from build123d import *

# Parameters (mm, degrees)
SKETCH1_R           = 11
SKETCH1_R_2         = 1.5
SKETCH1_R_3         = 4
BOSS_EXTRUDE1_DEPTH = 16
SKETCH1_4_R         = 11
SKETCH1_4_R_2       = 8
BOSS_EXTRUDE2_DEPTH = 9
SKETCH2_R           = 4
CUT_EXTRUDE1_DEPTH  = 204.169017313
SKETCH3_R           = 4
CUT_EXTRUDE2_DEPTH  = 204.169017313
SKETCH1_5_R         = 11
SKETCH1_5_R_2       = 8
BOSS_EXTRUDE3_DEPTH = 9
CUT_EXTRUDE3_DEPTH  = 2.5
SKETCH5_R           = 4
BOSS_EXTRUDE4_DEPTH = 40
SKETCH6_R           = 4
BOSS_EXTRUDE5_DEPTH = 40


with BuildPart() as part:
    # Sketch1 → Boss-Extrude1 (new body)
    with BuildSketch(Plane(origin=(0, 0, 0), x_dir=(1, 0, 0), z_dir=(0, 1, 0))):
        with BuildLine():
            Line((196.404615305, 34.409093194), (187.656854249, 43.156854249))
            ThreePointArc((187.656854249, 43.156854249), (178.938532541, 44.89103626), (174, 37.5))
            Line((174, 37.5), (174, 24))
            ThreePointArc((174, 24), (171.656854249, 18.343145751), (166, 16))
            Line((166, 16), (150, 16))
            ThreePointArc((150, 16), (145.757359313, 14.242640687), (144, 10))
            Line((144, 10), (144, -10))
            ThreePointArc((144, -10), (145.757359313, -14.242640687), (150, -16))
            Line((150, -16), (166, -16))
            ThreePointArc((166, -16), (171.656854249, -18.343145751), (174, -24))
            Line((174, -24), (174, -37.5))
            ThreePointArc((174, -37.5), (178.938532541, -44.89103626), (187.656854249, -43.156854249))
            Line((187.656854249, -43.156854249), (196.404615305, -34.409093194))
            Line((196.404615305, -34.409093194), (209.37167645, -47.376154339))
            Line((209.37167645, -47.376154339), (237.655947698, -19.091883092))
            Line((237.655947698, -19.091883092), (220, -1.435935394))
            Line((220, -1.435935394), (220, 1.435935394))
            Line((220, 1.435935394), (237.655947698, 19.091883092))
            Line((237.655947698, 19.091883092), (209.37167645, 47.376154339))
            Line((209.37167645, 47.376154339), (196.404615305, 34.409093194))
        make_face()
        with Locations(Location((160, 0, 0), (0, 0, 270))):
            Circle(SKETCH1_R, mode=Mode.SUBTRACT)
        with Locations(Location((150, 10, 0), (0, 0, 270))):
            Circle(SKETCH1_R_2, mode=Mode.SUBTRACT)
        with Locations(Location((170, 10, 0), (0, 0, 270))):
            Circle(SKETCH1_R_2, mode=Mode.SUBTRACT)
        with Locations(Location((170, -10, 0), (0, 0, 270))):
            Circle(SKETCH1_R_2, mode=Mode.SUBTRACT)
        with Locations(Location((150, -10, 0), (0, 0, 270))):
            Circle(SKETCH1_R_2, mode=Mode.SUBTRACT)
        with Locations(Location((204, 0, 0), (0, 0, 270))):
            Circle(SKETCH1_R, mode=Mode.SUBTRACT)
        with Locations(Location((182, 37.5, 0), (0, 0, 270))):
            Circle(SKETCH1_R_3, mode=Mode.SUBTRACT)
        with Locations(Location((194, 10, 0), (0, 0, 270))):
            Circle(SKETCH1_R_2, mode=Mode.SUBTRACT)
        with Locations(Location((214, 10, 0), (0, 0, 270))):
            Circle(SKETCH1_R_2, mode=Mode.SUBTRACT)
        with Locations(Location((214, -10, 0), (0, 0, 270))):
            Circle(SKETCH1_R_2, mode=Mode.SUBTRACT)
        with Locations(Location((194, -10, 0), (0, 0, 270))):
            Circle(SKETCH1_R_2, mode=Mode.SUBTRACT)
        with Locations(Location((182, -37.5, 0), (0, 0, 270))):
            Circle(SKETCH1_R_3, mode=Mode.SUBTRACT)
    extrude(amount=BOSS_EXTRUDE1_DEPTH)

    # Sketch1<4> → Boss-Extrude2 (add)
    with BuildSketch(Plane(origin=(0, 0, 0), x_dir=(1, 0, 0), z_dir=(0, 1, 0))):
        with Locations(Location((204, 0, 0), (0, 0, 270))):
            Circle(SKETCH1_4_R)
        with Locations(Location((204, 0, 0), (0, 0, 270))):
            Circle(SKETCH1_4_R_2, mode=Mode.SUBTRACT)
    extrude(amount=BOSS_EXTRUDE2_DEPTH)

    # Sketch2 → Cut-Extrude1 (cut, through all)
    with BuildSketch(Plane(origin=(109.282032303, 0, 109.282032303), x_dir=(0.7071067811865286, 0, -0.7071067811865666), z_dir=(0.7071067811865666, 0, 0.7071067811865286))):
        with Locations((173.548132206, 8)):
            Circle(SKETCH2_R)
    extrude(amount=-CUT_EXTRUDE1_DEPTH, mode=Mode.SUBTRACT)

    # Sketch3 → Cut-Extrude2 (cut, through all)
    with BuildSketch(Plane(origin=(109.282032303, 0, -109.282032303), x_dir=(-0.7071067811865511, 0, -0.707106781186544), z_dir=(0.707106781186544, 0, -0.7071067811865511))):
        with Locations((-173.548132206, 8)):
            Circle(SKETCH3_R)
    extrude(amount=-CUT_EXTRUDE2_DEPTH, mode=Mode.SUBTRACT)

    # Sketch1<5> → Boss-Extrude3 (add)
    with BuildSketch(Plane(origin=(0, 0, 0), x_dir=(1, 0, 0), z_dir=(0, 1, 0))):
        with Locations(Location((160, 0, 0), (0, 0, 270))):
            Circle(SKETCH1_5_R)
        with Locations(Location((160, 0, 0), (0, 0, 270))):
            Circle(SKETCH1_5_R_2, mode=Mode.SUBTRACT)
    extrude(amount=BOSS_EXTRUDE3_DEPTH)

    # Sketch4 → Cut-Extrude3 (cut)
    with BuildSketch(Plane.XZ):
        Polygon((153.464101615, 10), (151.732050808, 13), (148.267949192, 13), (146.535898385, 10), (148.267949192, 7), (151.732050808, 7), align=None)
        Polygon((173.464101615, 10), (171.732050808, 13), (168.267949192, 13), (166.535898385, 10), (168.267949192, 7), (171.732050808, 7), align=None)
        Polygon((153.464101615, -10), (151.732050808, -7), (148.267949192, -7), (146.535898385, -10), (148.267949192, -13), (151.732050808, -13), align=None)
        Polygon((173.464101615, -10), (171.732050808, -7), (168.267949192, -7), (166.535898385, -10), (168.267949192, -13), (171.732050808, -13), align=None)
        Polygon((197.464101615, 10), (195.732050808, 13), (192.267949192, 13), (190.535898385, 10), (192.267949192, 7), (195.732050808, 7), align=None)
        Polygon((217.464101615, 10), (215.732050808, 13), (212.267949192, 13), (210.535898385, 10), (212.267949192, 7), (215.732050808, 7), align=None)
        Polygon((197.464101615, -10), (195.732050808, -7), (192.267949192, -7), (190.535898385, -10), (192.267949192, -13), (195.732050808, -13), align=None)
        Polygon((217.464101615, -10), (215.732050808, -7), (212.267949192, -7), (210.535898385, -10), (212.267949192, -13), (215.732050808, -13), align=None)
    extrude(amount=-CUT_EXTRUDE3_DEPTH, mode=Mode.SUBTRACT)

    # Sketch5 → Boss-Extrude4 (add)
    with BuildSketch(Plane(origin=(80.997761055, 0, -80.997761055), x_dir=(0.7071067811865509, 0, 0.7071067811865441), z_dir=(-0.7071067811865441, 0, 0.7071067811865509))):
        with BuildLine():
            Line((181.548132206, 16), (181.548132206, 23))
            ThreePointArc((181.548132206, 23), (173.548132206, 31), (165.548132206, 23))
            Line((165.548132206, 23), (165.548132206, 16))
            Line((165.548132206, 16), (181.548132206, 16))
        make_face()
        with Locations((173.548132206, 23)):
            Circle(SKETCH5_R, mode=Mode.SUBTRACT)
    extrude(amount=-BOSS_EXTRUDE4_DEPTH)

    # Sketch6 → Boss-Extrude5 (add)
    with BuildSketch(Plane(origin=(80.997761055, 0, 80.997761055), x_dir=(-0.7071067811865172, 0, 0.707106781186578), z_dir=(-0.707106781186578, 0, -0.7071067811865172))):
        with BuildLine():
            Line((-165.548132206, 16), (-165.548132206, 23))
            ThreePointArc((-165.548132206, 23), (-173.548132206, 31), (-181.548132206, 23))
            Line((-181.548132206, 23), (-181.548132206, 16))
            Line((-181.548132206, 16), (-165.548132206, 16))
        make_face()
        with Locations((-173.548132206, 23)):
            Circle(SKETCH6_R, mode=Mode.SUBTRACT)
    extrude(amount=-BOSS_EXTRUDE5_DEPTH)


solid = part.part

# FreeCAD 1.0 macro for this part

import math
import FreeCAD as App
import Part
import Sketcher
Q = App.Units.Quantity

doc = App.newDocument("Part")
body = doc.addObject("PartDesign::Body", "Body")

# Sketch on XZ plane
sketch1 = doc.addObject("Sketcher::SketchObject", "Sketch")
body.addObject(sketch1)
sketch1.AttachmentSupport = (doc.XZ_Plane, [""])
sketch1.MapMode = "FlatFace"
sketch1.addGeometry(Part.LineSegment(App.Vector(196.4, -34.4, 0), App.Vector(187.7, -43.2, 0)), False)
sketch1.addGeometry(Part.ArcOfCircle(Part.Circle(App.Vector(182, -37.5, 0), App.Vector(0, 0, 1), 8), math.radians(180), math.radians(315)), False)
sketch1.addGeometry(Part.LineSegment(App.Vector(174, -37.5, 0), App.Vector(174, -24, 0)), False)
sketch1.addGeometry(Part.ArcOfCircle(Part.Circle(App.Vector(166, -24, 0), App.Vector(0, 0, 1), 8), math.radians(0), math.radians(90)), False)
sketch1.addGeometry(Part.LineSegment(App.Vector(166, -16, 0), App.Vector(150, -16, 0)), False)
sketch1.addGeometry(Part.ArcOfCircle(Part.Circle(App.Vector(150, -10, 0), App.Vector(0, 0, 1), 6), math.radians(180), math.radians(270)), False)
sketch1.addGeometry(Part.LineSegment(App.Vector(144, -10, 0), App.Vector(144, 10, 0)), False)
sketch1.addGeometry(Part.ArcOfCircle(Part.Circle(App.Vector(150, 10, 0), App.Vector(0, 0, 1), 6), math.radians(90), math.radians(180)), False)
sketch1.addGeometry(Part.LineSegment(App.Vector(150, 16, 0), App.Vector(166, 16, 0)), False)
sketch1.addGeometry(Part.ArcOfCircle(Part.Circle(App.Vector(166, 24, 0), App.Vector(0, 0, 1), 8), math.radians(-90), math.radians(0)), False)
sketch1.addGeometry(Part.LineSegment(App.Vector(174, 24, 0), App.Vector(174, 37.5, 0)), False)
sketch1.addGeometry(Part.ArcOfCircle(Part.Circle(App.Vector(182, 37.5, 0), App.Vector(0, 0, 1), 8), math.radians(45), math.radians(180)), False)
sketch1.addGeometry(Part.LineSegment(App.Vector(187.7, 43.2, 0), App.Vector(196.4, 34.4, 0)), False)
sketch1.addGeometry(Part.LineSegment(App.Vector(196.4, 34.4, 0), App.Vector(209.4, 47.4, 0)), False)
sketch1.addGeometry(Part.LineSegment(App.Vector(209.4, 47.4, 0), App.Vector(237.7, 19.1, 0)), False)
sketch1.addGeometry(Part.LineSegment(App.Vector(237.7, 19.1, 0), App.Vector(220, 1.4, 0)), False)
sketch1.addGeometry(Part.LineSegment(App.Vector(220, 1.4, 0), App.Vector(220, -1.4, 0)), False)
sketch1.addGeometry(Part.LineSegment(App.Vector(220, -1.4, 0), App.Vector(237.7, -19.1, 0)), False)
sketch1.addGeometry(Part.LineSegment(App.Vector(237.7, -19.1, 0), App.Vector(209.4, -47.4, 0)), False)
sketch1.addGeometry(Part.LineSegment(App.Vector(209.4, -47.4, 0), App.Vector(196.4, -34.4, 0)), False)
sketch1.addGeometry(Part.Circle(App.Vector(150, 10, 0), App.Vector(0, 0, 1), 1.5), False)
sketch1.addGeometry(Part.Circle(App.Vector(170, 10, 0), App.Vector(0, 0, 1), 1.5), False)
sketch1.addGeometry(Part.Circle(App.Vector(182, 37.5, 0), App.Vector(0, 0, 1), 4), False)
sketch1.addGeometry(Part.Circle(App.Vector(194, 10, 0), App.Vector(0, 0, 1), 1.5), False)
sketch1.addGeometry(Part.Circle(App.Vector(214, 10, 0), App.Vector(0, 0, 1), 1.5), False)
sketch1.addGeometry(Part.Circle(App.Vector(150, -10, 0), App.Vector(0, 0, 1), 1.5), False)
sketch1.addGeometry(Part.Circle(App.Vector(160, 0, 0), App.Vector(0, 0, 1), 11), False)
sketch1.addGeometry(Part.Circle(App.Vector(170, -10, 0), App.Vector(0, 0, 1), 1.5), False)
sketch1.addGeometry(Part.Circle(App.Vector(194, -10, 0), App.Vector(0, 0, 1), 1.5), False)
sketch1.addGeometry(Part.Circle(App.Vector(204, 0, 0), App.Vector(0, 0, 1), 11), False)
sketch1.addGeometry(Part.Circle(App.Vector(214, -10, 0), App.Vector(0, 0, 1), 1.5), False)
sketch1.addGeometry(Part.Circle(App.Vector(182, -37.5, 0), App.Vector(0, 0, 1), 4), False)
sketch1.addConstraint(Sketcher.Constraint("Tangent", 0, 2, 1, 2))
sketch1.addConstraint(Sketcher.Constraint("Tangent", 1, 1, 2, 1))
sketch1.addConstraint(Sketcher.Constraint("Tangent", 2, 2, 3, 1))
sketch1.addConstraint(Sketcher.Constraint("Tangent", 3, 2, 4, 1))
sketch1.addConstraint(Sketcher.Constraint("Tangent", 4, 2, 5, 2))
sketch1.addConstraint(Sketcher.Constraint("Tangent", 5, 1, 6, 1))
sketch1.addConstraint(Sketcher.Constraint("Tangent", 6, 2, 7, 2))
sketch1.addConstraint(Sketcher.Constraint("Tangent", 7, 1, 8, 1))
sketch1.addConstraint(Sketcher.Constraint("Tangent", 8, 2, 9, 1))
sketch1.addConstraint(Sketcher.Constraint("Tangent", 9, 2, 10, 1))
sketch1.addConstraint(Sketcher.Constraint("Tangent", 10, 2, 11, 2))
sketch1.addConstraint(Sketcher.Constraint("Tangent", 11, 1, 12, 1))
sketch1.addConstraint(Sketcher.Constraint("Coincident", 12, 2, 13, 1))
sketch1.addConstraint(Sketcher.Constraint("Coincident", 13, 2, 14, 1))
sketch1.addConstraint(Sketcher.Constraint("Coincident", 14, 2, 15, 1))
sketch1.addConstraint(Sketcher.Constraint("Coincident", 15, 2, 16, 1))
sketch1.addConstraint(Sketcher.Constraint("Coincident", 16, 2, 17, 1))
sketch1.addConstraint(Sketcher.Constraint("Coincident", 17, 2, 18, 1))
sketch1.addConstraint(Sketcher.Constraint("Coincident", 18, 2, 19, 1))
sketch1.addConstraint(Sketcher.Constraint("Coincident", 19, 2, 0, 1))
sketch1.addConstraint(Sketcher.Constraint("Vertical", 2))
sketch1.addConstraint(Sketcher.Constraint("Horizontal", 4))
sketch1.addConstraint(Sketcher.Constraint("Vertical", 6))
sketch1.addConstraint(Sketcher.Constraint("Horizontal", 8))
sketch1.addConstraint(Sketcher.Constraint("Vertical", 10))
sketch1.addConstraint(Sketcher.Constraint("Vertical", 16))
sketch1.addConstraint(Sketcher.Constraint("Coincident", 20, 3, 7, 3))
sketch1.addConstraint(Sketcher.Constraint("Coincident", 22, 3, 11, 3))
sketch1.addConstraint(Sketcher.Constraint("Coincident", 25, 3, 5, 3))
sketch1.addConstraint(Sketcher.Constraint("Coincident", 31, 3, 1, 3))
sketch1.addConstraint(Sketcher.Constraint("Equal", 1, 3))
sketch1.addConstraint(Sketcher.Constraint("Equal", 5, 7))
sketch1.addConstraint(Sketcher.Constraint("Equal", 3, 9))
sketch1.addConstraint(Sketcher.Constraint("Equal", 9, 11))
sketch1.addConstraint(Sketcher.Constraint("Equal", 20, 21))
sketch1.addConstraint(Sketcher.Constraint("Equal", 21, 23))
sketch1.addConstraint(Sketcher.Constraint("Equal", 23, 24))
sketch1.addConstraint(Sketcher.Constraint("Equal", 24, 25))
sketch1.addConstraint(Sketcher.Constraint("Equal", 25, 27))
sketch1.addConstraint(Sketcher.Constraint("Equal", 27, 28))
sketch1.addConstraint(Sketcher.Constraint("Equal", 26, 29))
sketch1.addConstraint(Sketcher.Constraint("Equal", 28, 30))
sketch1.addConstraint(Sketcher.Constraint("Equal", 22, 31))
sketch1.addConstraint(Sketcher.Constraint("Symmetric", 3, 3, 9, 3, -1))
sketch1.addConstraint(Sketcher.Constraint("Symmetric", 21, 3, 27, 3, -1))
sketch1.addConstraint(Sketcher.Constraint("Symmetric", 23, 3, 28, 3, -1))
sketch1.addConstraint(Sketcher.Constraint("Symmetric", 24, 3, 30, 3, -1))
sketch1.addConstraint(Sketcher.Constraint("Symmetric", 0, 2, 11, 1, -1))
sketch1.addConstraint(Sketcher.Constraint("Symmetric", 14, 2, 17, 2, -1))
sketch1.addConstraint(Sketcher.Constraint("Symmetric", 13, 2, 18, 2, -1))
sketch1.addConstraint(Sketcher.Constraint("PointOnObject", 26, 3, -1))
sketch1.addConstraint(Sketcher.Constraint("PointOnObject", 29, 3, -1))
sketch1.addConstraint(Sketcher.Constraint("Perpendicular", 0, 12))
sketch1.addConstraint(Sketcher.Constraint("Perpendicular", 12, 13))
sketch1.addConstraint(Sketcher.Constraint("Perpendicular", 13, 14))
sketch1.addConstraint(Sketcher.Constraint("Perpendicular", 14, 15))
sketch1.addConstraint(Sketcher.Constraint("Perpendicular", 15, 17))
sketch1.addConstraint(Sketcher.Constraint("Perpendicular", 18, 19))
sketch1.addConstraint(Sketcher.Constraint("Horizontal", 20, 3, 21, 3))
sketch1.addConstraint(Sketcher.Constraint("Horizontal", 21, 3, 23, 3))
sketch1.addConstraint(Sketcher.Constraint("Horizontal", 23, 3, 24, 3))
sketch1.addConstraint(Sketcher.Constraint("Diameter", 20, Q("3 mm")))
sketch1.addConstraint(Sketcher.Constraint("Diameter", 22, Q("8 mm")))
sketch1.addConstraint(Sketcher.Constraint("Diameter", 26, Q("22 mm")))
sketch1.addConstraint(Sketcher.Constraint("Radius", 1, Q("8 mm")))
sketch1.addConstraint(Sketcher.Constraint("Radius", 5, Q("6 mm")))
sketch1.addConstraint(Sketcher.Constraint("DistanceX", 4, 2, 4, 1, Q("16 mm")))
sketch1.addConstraint(Sketcher.Constraint("DistanceY", 6, 1, 6, 2, Q("20 mm")))
sketch1.addConstraint(Sketcher.Constraint("Distance", 14, Q("40 mm")))
sketch1.addConstraint(Sketcher.Constraint("DistanceY", 2, 1, 2, 2, Q("13.5 mm")))
sketch1.addConstraint(Sketcher.Constraint("DistanceX", -1, 1, 1, 3, Q("182 mm")))
sketch1.addConstraint(Sketcher.Constraint("DistanceX", -1, 1, 21, 3, Q("170 mm")))
sketch1.addConstraint(Sketcher.Constraint("DistanceX", -1, 1, 23, 3, Q("194 mm")))
sketch1.addConstraint(Sketcher.Constraint("DistanceX", -1, 1, 24, 3, Q("214 mm")))
sketch1.addConstraint(Sketcher.Constraint("DistanceX", -1, 1, 26, 3, Q("160 mm")))
sketch1.addConstraint(Sketcher.Constraint("DistanceX", -1, 1, 29, 3, Q("204 mm")))
sketch1.addConstraint(Sketcher.Constraint("DistanceX", -1, 1, 15, 2, Q("220 mm")))
sketch1.addConstraint(Sketcher.Constraint("DistanceY", 16, 2, 16, 1, Q("2.871871 mm")))
sketch1.addConstraint(Sketcher.Constraint("DistanceY", 11, 1, 13, 2, Q("4.2193 mm")))
pad1 = doc.addObject("PartDesign::Pad", "Pad")
body.addObject(pad1)
pad1.Profile = sketch1
pad1.Length = 16
pad1.Reversed = True

# Sketch on XZ plane
sketch2 = doc.addObject("Sketcher::SketchObject", "Sketch001")
body.addObject(sketch2)
sketch2.AttachmentSupport = (doc.XZ_Plane, [""])
sketch2.MapMode = "FlatFace"
sketch2.addGeometry(Part.Circle(App.Vector(204, 0, 0), App.Vector(0, 0, 1), 11), False)
sketch2.addGeometry(Part.Circle(App.Vector(204, 0, 0), App.Vector(0, 0, 1), 8), False)
sketch2.addConstraint(Sketcher.Constraint("Coincident", 1, 3, 0, 3))
sketch2.addConstraint(Sketcher.Constraint("PointOnObject", 0, 3, -1))
sketch2.addConstraint(Sketcher.Constraint("Diameter", 0, Q("22 mm")))
sketch2.addConstraint(Sketcher.Constraint("Diameter", 1, Q("16 mm")))
sketch2.addConstraint(Sketcher.Constraint("DistanceX", -1, 1, 0, 3, Q("204 mm")))
pad2 = doc.addObject("PartDesign::Pad", "Pad001")
body.addObject(pad2)
pad2.Profile = sketch2
pad2.Length = 9
pad2.Reversed = True

# Sketch on an angled plane
sketch3 = doc.addObject("Sketcher::SketchObject", "Sketch002")
body.addObject(sketch3)
sketch3.Placement = App.Placement(App.Vector(109.282032, 0, 109.282032), App.Rotation(App.Vector(0.707106781, 0, -0.707106781), App.Vector(0, 0.999999999, 0), App.Vector(0.707106781, 0, 0.707106781), "ZXY"))
sketch3.addGeometry(Part.Circle(App.Vector(173.5, 8, 0), App.Vector(0, 0, 1), 4), False)
sketch3.addConstraint(Sketcher.Constraint("Diameter", 0, Q("8 mm")))
sketch3.addConstraint(Sketcher.Constraint("DistanceY", -1, 1, 0, 3, Q("8 mm")))
sketch3.addConstraint(Sketcher.Constraint("DistanceX", -1, 1, 0, 3, Q("173.548132 mm")))
pocket1 = doc.addObject("PartDesign::Pocket", "Pocket")
body.addObject(pocket1)
pocket1.Profile = sketch3
pocket1.Type = "ThroughAll"

# Sketch on an angled plane
sketch4 = doc.addObject("Sketcher::SketchObject", "Sketch003")
body.addObject(sketch4)
sketch4.Placement = App.Placement(App.Vector(109.282032, 0, -109.282032), App.Rotation(App.Vector(-0.707106781, 0, -0.707106781), App.Vector(0, 0.999999999, 0), App.Vector(0.707106781, 0, -0.707106781), "ZXY"))
sketch4.addGeometry(Part.Circle(App.Vector(-173.5, 8, 0), App.Vector(0, 0, 1), 4), False)
sketch4.addConstraint(Sketcher.Constraint("Diameter", 0, Q("8 mm")))
sketch4.addConstraint(Sketcher.Constraint("DistanceY", -1, 1, 0, 3, Q("8 mm")))
sketch4.addConstraint(Sketcher.Constraint("DistanceX", 0, 3, -1, 1, Q("173.548132 mm")))
pocket2 = doc.addObject("PartDesign::Pocket", "Pocket001")
body.addObject(pocket2)
pocket2.Profile = sketch4
pocket2.Type = "ThroughAll"

# Sketch on XZ plane
sketch5 = doc.addObject("Sketcher::SketchObject", "Sketch004")
body.addObject(sketch5)
sketch5.AttachmentSupport = (doc.XZ_Plane, [""])
sketch5.MapMode = "FlatFace"
sketch5.addGeometry(Part.Circle(App.Vector(160, 0, 0), App.Vector(0, 0, 1), 11), False)
sketch5.addGeometry(Part.Circle(App.Vector(160, 0, 0), App.Vector(0, 0, 1), 8), False)
sketch5.addConstraint(Sketcher.Constraint("Coincident", 1, 3, 0, 3))
sketch5.addConstraint(Sketcher.Constraint("PointOnObject", 0, 3, -1))
sketch5.addConstraint(Sketcher.Constraint("Diameter", 0, Q("22 mm")))
sketch5.addConstraint(Sketcher.Constraint("Diameter", 1, Q("16 mm")))
sketch5.addConstraint(Sketcher.Constraint("DistanceX", -1, 1, 0, 3, Q("160 mm")))
pad3 = doc.addObject("PartDesign::Pad", "Pad002")
body.addObject(pad3)
pad3.Profile = sketch5
pad3.Length = 9
pad3.Reversed = True

# Sketch on XZ plane
sketch6 = doc.addObject("Sketcher::SketchObject", "Sketch005")
body.addObject(sketch6)
sketch6.AttachmentSupport = (doc.XZ_Plane, [""])
sketch6.MapMode = "FlatFace"
sketch6.addGeometry(Part.LineSegment(App.Vector(153.5, 10, 0), App.Vector(151.7, 13, 0)), False)
sketch6.addGeometry(Part.LineSegment(App.Vector(151.7, 13, 0), App.Vector(148.3, 13, 0)), False)
sketch6.addGeometry(Part.LineSegment(App.Vector(148.3, 13, 0), App.Vector(146.5, 10, 0)), False)
sketch6.addGeometry(Part.LineSegment(App.Vector(146.5, 10, 0), App.Vector(148.3, 7, 0)), False)
sketch6.addGeometry(Part.LineSegment(App.Vector(148.3, 7, 0), App.Vector(151.7, 7, 0)), False)
sketch6.addGeometry(Part.LineSegment(App.Vector(151.7, 7, 0), App.Vector(153.5, 10, 0)), False)
sketch6.addGeometry(Part.LineSegment(App.Vector(173.5, 10, 0), App.Vector(171.7, 13, 0)), False)
sketch6.addGeometry(Part.LineSegment(App.Vector(171.7, 13, 0), App.Vector(168.3, 13, 0)), False)
sketch6.addGeometry(Part.LineSegment(App.Vector(168.3, 13, 0), App.Vector(166.5, 10, 0)), False)
sketch6.addGeometry(Part.LineSegment(App.Vector(166.5, 10, 0), App.Vector(168.3, 7, 0)), False)
sketch6.addGeometry(Part.LineSegment(App.Vector(168.3, 7, 0), App.Vector(171.7, 7, 0)), False)
sketch6.addGeometry(Part.LineSegment(App.Vector(171.7, 7, 0), App.Vector(173.5, 10, 0)), False)
sketch6.addGeometry(Part.LineSegment(App.Vector(153.5, -10, 0), App.Vector(151.7, -7, 0)), False)
sketch6.addGeometry(Part.LineSegment(App.Vector(151.7, -7, 0), App.Vector(148.3, -7, 0)), False)
sketch6.addGeometry(Part.LineSegment(App.Vector(148.3, -7, 0), App.Vector(146.5, -10, 0)), False)
sketch6.addGeometry(Part.LineSegment(App.Vector(146.5, -10, 0), App.Vector(148.3, -13, 0)), False)
sketch6.addGeometry(Part.LineSegment(App.Vector(148.3, -13, 0), App.Vector(151.7, -13, 0)), False)
sketch6.addGeometry(Part.LineSegment(App.Vector(151.7, -13, 0), App.Vector(153.5, -10, 0)), False)
sketch6.addGeometry(Part.LineSegment(App.Vector(173.5, -10, 0), App.Vector(171.7, -7, 0)), False)
sketch6.addGeometry(Part.LineSegment(App.Vector(171.7, -7, 0), App.Vector(168.3, -7, 0)), False)
sketch6.addGeometry(Part.LineSegment(App.Vector(168.3, -7, 0), App.Vector(166.5, -10, 0)), False)
sketch6.addGeometry(Part.LineSegment(App.Vector(166.5, -10, 0), App.Vector(168.3, -13, 0)), False)
sketch6.addGeometry(Part.LineSegment(App.Vector(168.3, -13, 0), App.Vector(171.7, -13, 0)), False)
sketch6.addGeometry(Part.LineSegment(App.Vector(171.7, -13, 0), App.Vector(173.5, -10, 0)), False)
sketch6.addGeometry(Part.LineSegment(App.Vector(197.5, 10, 0), App.Vector(195.7, 13, 0)), False)
sketch6.addGeometry(Part.LineSegment(App.Vector(195.7, 13, 0), App.Vector(192.3, 13, 0)), False)
sketch6.addGeometry(Part.LineSegment(App.Vector(192.3, 13, 0), App.Vector(190.5, 10, 0)), False)
sketch6.addGeometry(Part.LineSegment(App.Vector(190.5, 10, 0), App.Vector(192.3, 7, 0)), False)
sketch6.addGeometry(Part.LineSegment(App.Vector(192.3, 7, 0), App.Vector(195.7, 7, 0)), False)
sketch6.addGeometry(Part.LineSegment(App.Vector(195.7, 7, 0), App.Vector(197.5, 10, 0)), False)
sketch6.addGeometry(Part.LineSegment(App.Vector(217.5, 10, 0), App.Vector(215.7, 13, 0)), False)
sketch6.addGeometry(Part.LineSegment(App.Vector(215.7, 13, 0), App.Vector(212.3, 13, 0)), False)
sketch6.addGeometry(Part.LineSegment(App.Vector(212.3, 13, 0), App.Vector(210.5, 10, 0)), False)
sketch6.addGeometry(Part.LineSegment(App.Vector(210.5, 10, 0), App.Vector(212.3, 7, 0)), False)
sketch6.addGeometry(Part.LineSegment(App.Vector(212.3, 7, 0), App.Vector(215.7, 7, 0)), False)
sketch6.addGeometry(Part.LineSegment(App.Vector(215.7, 7, 0), App.Vector(217.5, 10, 0)), False)
sketch6.addGeometry(Part.LineSegment(App.Vector(197.5, -10, 0), App.Vector(195.7, -7, 0)), False)
sketch6.addGeometry(Part.LineSegment(App.Vector(195.7, -7, 0), App.Vector(192.3, -7, 0)), False)
sketch6.addGeometry(Part.LineSegment(App.Vector(192.3, -7, 0), App.Vector(190.5, -10, 0)), False)
sketch6.addGeometry(Part.LineSegment(App.Vector(190.5, -10, 0), App.Vector(192.3, -13, 0)), False)
sketch6.addGeometry(Part.LineSegment(App.Vector(192.3, -13, 0), App.Vector(195.7, -13, 0)), False)
sketch6.addGeometry(Part.LineSegment(App.Vector(195.7, -13, 0), App.Vector(197.5, -10, 0)), False)
sketch6.addGeometry(Part.LineSegment(App.Vector(217.5, -10, 0), App.Vector(215.7, -7, 0)), False)
sketch6.addGeometry(Part.LineSegment(App.Vector(215.7, -7, 0), App.Vector(212.3, -7, 0)), False)
sketch6.addGeometry(Part.LineSegment(App.Vector(212.3, -7, 0), App.Vector(210.5, -10, 0)), False)
sketch6.addGeometry(Part.LineSegment(App.Vector(210.5, -10, 0), App.Vector(212.3, -13, 0)), False)
sketch6.addGeometry(Part.LineSegment(App.Vector(212.3, -13, 0), App.Vector(215.7, -13, 0)), False)
sketch6.addGeometry(Part.LineSegment(App.Vector(215.7, -13, 0), App.Vector(217.5, -10, 0)), False)
sketch6.addConstraint(Sketcher.Constraint("Coincident", 0, 2, 1, 1))
sketch6.addConstraint(Sketcher.Constraint("Coincident", 1, 2, 2, 1))
sketch6.addConstraint(Sketcher.Constraint("Coincident", 2, 2, 3, 1))
sketch6.addConstraint(Sketcher.Constraint("Coincident", 3, 2, 4, 1))
sketch6.addConstraint(Sketcher.Constraint("Coincident", 4, 2, 5, 1))
sketch6.addConstraint(Sketcher.Constraint("Coincident", 5, 2, 0, 1))
sketch6.addConstraint(Sketcher.Constraint("Coincident", 6, 2, 7, 1))
sketch6.addConstraint(Sketcher.Constraint("Coincident", 7, 2, 8, 1))
sketch6.addConstraint(Sketcher.Constraint("Coincident", 8, 2, 9, 1))
sketch6.addConstraint(Sketcher.Constraint("Coincident", 9, 2, 10, 1))
sketch6.addConstraint(Sketcher.Constraint("Coincident", 10, 2, 11, 1))
sketch6.addConstraint(Sketcher.Constraint("Coincident", 11, 2, 6, 1))
sketch6.addConstraint(Sketcher.Constraint("Coincident", 12, 2, 13, 1))
sketch6.addConstraint(Sketcher.Constraint("Coincident", 13, 2, 14, 1))
sketch6.addConstraint(Sketcher.Constraint("Coincident", 14, 2, 15, 1))
sketch6.addConstraint(Sketcher.Constraint("Coincident", 15, 2, 16, 1))
sketch6.addConstraint(Sketcher.Constraint("Coincident", 16, 2, 17, 1))
sketch6.addConstraint(Sketcher.Constraint("Coincident", 17, 2, 12, 1))
sketch6.addConstraint(Sketcher.Constraint("Coincident", 18, 2, 19, 1))
sketch6.addConstraint(Sketcher.Constraint("Coincident", 19, 2, 20, 1))
sketch6.addConstraint(Sketcher.Constraint("Coincident", 20, 2, 21, 1))
sketch6.addConstraint(Sketcher.Constraint("Coincident", 21, 2, 22, 1))
sketch6.addConstraint(Sketcher.Constraint("Coincident", 22, 2, 23, 1))
sketch6.addConstraint(Sketcher.Constraint("Coincident", 23, 2, 18, 1))
sketch6.addConstraint(Sketcher.Constraint("Coincident", 24, 2, 25, 1))
sketch6.addConstraint(Sketcher.Constraint("Coincident", 25, 2, 26, 1))
sketch6.addConstraint(Sketcher.Constraint("Coincident", 26, 2, 27, 1))
sketch6.addConstraint(Sketcher.Constraint("Coincident", 27, 2, 28, 1))
sketch6.addConstraint(Sketcher.Constraint("Coincident", 28, 2, 29, 1))
sketch6.addConstraint(Sketcher.Constraint("Coincident", 29, 2, 24, 1))
sketch6.addConstraint(Sketcher.Constraint("Coincident", 30, 2, 31, 1))
sketch6.addConstraint(Sketcher.Constraint("Coincident", 31, 2, 32, 1))
sketch6.addConstraint(Sketcher.Constraint("Coincident", 32, 2, 33, 1))
sketch6.addConstraint(Sketcher.Constraint("Coincident", 33, 2, 34, 1))
sketch6.addConstraint(Sketcher.Constraint("Coincident", 34, 2, 35, 1))
sketch6.addConstraint(Sketcher.Constraint("Coincident", 35, 2, 30, 1))
sketch6.addConstraint(Sketcher.Constraint("Coincident", 36, 2, 37, 1))
sketch6.addConstraint(Sketcher.Constraint("Coincident", 37, 2, 38, 1))
sketch6.addConstraint(Sketcher.Constraint("Coincident", 38, 2, 39, 1))
sketch6.addConstraint(Sketcher.Constraint("Coincident", 39, 2, 40, 1))
sketch6.addConstraint(Sketcher.Constraint("Coincident", 40, 2, 41, 1))
sketch6.addConstraint(Sketcher.Constraint("Coincident", 41, 2, 36, 1))
sketch6.addConstraint(Sketcher.Constraint("Coincident", 42, 2, 43, 1))
sketch6.addConstraint(Sketcher.Constraint("Coincident", 43, 2, 44, 1))
sketch6.addConstraint(Sketcher.Constraint("Coincident", 44, 2, 45, 1))
sketch6.addConstraint(Sketcher.Constraint("Coincident", 45, 2, 46, 1))
sketch6.addConstraint(Sketcher.Constraint("Coincident", 46, 2, 47, 1))
sketch6.addConstraint(Sketcher.Constraint("Coincident", 47, 2, 42, 1))
sketch6.addConstraint(Sketcher.Constraint("Horizontal", 1))
sketch6.addConstraint(Sketcher.Constraint("Horizontal", 4))
sketch6.addConstraint(Sketcher.Constraint("Horizontal", 7))
sketch6.addConstraint(Sketcher.Constraint("Horizontal", 10))
sketch6.addConstraint(Sketcher.Constraint("Horizontal", 13))
sketch6.addConstraint(Sketcher.Constraint("Horizontal", 16))
sketch6.addConstraint(Sketcher.Constraint("Horizontal", 19))
sketch6.addConstraint(Sketcher.Constraint("Horizontal", 22))
sketch6.addConstraint(Sketcher.Constraint("Horizontal", 25))
sketch6.addConstraint(Sketcher.Constraint("Horizontal", 28))
sketch6.addConstraint(Sketcher.Constraint("Horizontal", 31))
sketch6.addConstraint(Sketcher.Constraint("Horizontal", 34))
sketch6.addConstraint(Sketcher.Constraint("Horizontal", 37))
sketch6.addConstraint(Sketcher.Constraint("Horizontal", 40))
sketch6.addConstraint(Sketcher.Constraint("Horizontal", 43))
sketch6.addConstraint(Sketcher.Constraint("Horizontal", 46))
sketch6.addConstraint(Sketcher.Constraint("Symmetric", 4, 2, 12, 2, -1))
sketch6.addConstraint(Sketcher.Constraint("Symmetric", 2, 2, 14, 2, -1))
sketch6.addConstraint(Sketcher.Constraint("Symmetric", 1, 2, 15, 2, -1))
sketch6.addConstraint(Sketcher.Constraint("Symmetric", 5, 2, 17, 2, -1))
sketch6.addConstraint(Sketcher.Constraint("Symmetric", 10, 2, 18, 2, -1))
sketch6.addConstraint(Sketcher.Constraint("Symmetric", 8, 2, 20, 2, -1))
sketch6.addConstraint(Sketcher.Constraint("Symmetric", 7, 2, 21, 2, -1))
sketch6.addConstraint(Sketcher.Constraint("Symmetric", 11, 2, 23, 2, -1))
sketch6.addConstraint(Sketcher.Constraint("Symmetric", 28, 2, 36, 2, -1))
sketch6.addConstraint(Sketcher.Constraint("Symmetric", 26, 2, 38, 2, -1))
sketch6.addConstraint(Sketcher.Constraint("Symmetric", 25, 2, 39, 2, -1))
sketch6.addConstraint(Sketcher.Constraint("Symmetric", 29, 2, 41, 2, -1))
sketch6.addConstraint(Sketcher.Constraint("Symmetric", 34, 2, 42, 2, -1))
sketch6.addConstraint(Sketcher.Constraint("Symmetric", 32, 2, 44, 2, -1))
sketch6.addConstraint(Sketcher.Constraint("Symmetric", 31, 2, 45, 2, -1))
sketch6.addConstraint(Sketcher.Constraint("Symmetric", 35, 2, 47, 2, -1))
sketch6.addConstraint(Sketcher.Constraint("Parallel", 0, 3))
sketch6.addConstraint(Sketcher.Constraint("Parallel", 2, 5))
sketch6.addConstraint(Sketcher.Constraint("Parallel", 3, 6))
sketch6.addConstraint(Sketcher.Constraint("Parallel", 5, 8))
sketch6.addConstraint(Sketcher.Constraint("Parallel", 6, 9))
sketch6.addConstraint(Sketcher.Constraint("Parallel", 8, 11))
sketch6.addConstraint(Sketcher.Constraint("Parallel", 9, 12))
sketch6.addConstraint(Sketcher.Constraint("Parallel", 11, 14))
sketch6.addConstraint(Sketcher.Constraint("Parallel", 14, 17))
sketch6.addConstraint(Sketcher.Constraint("Parallel", 17, 20))
sketch6.addConstraint(Sketcher.Constraint("Parallel", 20, 23))
sketch6.addConstraint(Sketcher.Constraint("Parallel", 21, 24))
sketch6.addConstraint(Sketcher.Constraint("Parallel", 23, 26))
sketch6.addConstraint(Sketcher.Constraint("Parallel", 24, 27))
sketch6.addConstraint(Sketcher.Constraint("Parallel", 26, 29))
sketch6.addConstraint(Sketcher.Constraint("Parallel", 27, 30))
sketch6.addConstraint(Sketcher.Constraint("Parallel", 29, 32))
sketch6.addConstraint(Sketcher.Constraint("Parallel", 30, 33))
sketch6.addConstraint(Sketcher.Constraint("Parallel", 32, 35))
sketch6.addConstraint(Sketcher.Constraint("Parallel", 35, 38))
sketch6.addConstraint(Sketcher.Constraint("Parallel", 38, 41))
sketch6.addConstraint(Sketcher.Constraint("Parallel", 41, 44))
sketch6.addConstraint(Sketcher.Constraint("Parallel", 44, 47))
sketch6.addConstraint(Sketcher.Constraint("Horizontal", 2, 2, 5, 2))
sketch6.addConstraint(Sketcher.Constraint("Horizontal", 1, 2, 6, 2))
sketch6.addConstraint(Sketcher.Constraint("Horizontal", 5, 2, 8, 2))
sketch6.addConstraint(Sketcher.Constraint("Horizontal", 4, 2, 9, 2))
sketch6.addConstraint(Sketcher.Constraint("Horizontal", 8, 2, 11, 2))
sketch6.addConstraint(Sketcher.Constraint("Horizontal", 7, 2, 24, 2))
sketch6.addConstraint(Sketcher.Constraint("Horizontal", 11, 2, 26, 2))
sketch6.addConstraint(Sketcher.Constraint("Horizontal", 10, 2, 27, 2))
sketch6.addConstraint(Sketcher.Constraint("Horizontal", 26, 2, 29, 2))
sketch6.addConstraint(Sketcher.Constraint("Horizontal", 25, 2, 30, 2))
sketch6.addConstraint(Sketcher.Constraint("Horizontal", 29, 2, 32, 2))
sketch6.addConstraint(Sketcher.Constraint("Horizontal", 28, 2, 33, 2))
sketch6.addConstraint(Sketcher.Constraint("Horizontal", 32, 2, 35, 2))
sketch6.addConstraint(Sketcher.Constraint("Vertical", 1, 2, 3, 2))
sketch6.addConstraint(Sketcher.Constraint("Equal", 4, 7))
sketch6.addConstraint(Sketcher.Constraint("Equal", 22, 25))
sketch6.addConstraint(Sketcher.Constraint("Equal", 28, 31))
sketch6.addConstraint(Sketcher.Constraint("Angle", 0, Q("120 deg")))
sketch6.addConstraint(Sketcher.Constraint("DistanceY", -1, 1, 0, 2, Q("13 mm")))
sketch6.addConstraint(Sketcher.Constraint("DistanceY", -1, 1, 2, 2, Q("10 mm")))
sketch6.addConstraint(Sketcher.Constraint("DistanceX", 0, 2, 6, 2, Q("20 mm")))
sketch6.addConstraint(Sketcher.Constraint("DistanceX", 6, 2, 24, 2, Q("24 mm")))
sketch6.addConstraint(Sketcher.Constraint("DistanceX", 24, 2, 30, 2, Q("20 mm")))
sketch6.addConstraint(Sketcher.Constraint("DistanceX", 1, 2, 1, 1, Q("3.464102 mm")))
sketch6.addConstraint(Sketcher.Constraint("DistanceX", -1, 1, 2, 2, Q("146.535898 mm")))
pocket3 = doc.addObject("PartDesign::Pocket", "Pocket002")
body.addObject(pocket3)
pocket3.Profile = sketch6
pocket3.Length = 2.5

# Sketch on an angled plane
sketch7 = doc.addObject("Sketcher::SketchObject", "Sketch006")
body.addObject(sketch7)
sketch7.Placement = App.Placement(App.Vector(80.997761, 0, -80.997761), App.Rotation(App.Vector(0.707106781, 0, 0.707106781), App.Vector(0, 0.999999999, 0), App.Vector(-0.707106781, 0, 0.707106781), "ZXY"))
sketch7.addGeometry(Part.LineSegment(App.Vector(181.5, 16, 0), App.Vector(181.5, 23, 0)), False)
sketch7.addGeometry(Part.ArcOfCircle(Part.Circle(App.Vector(173.5, 23, 0), App.Vector(0, 0, 1), 8), math.radians(0), math.radians(180)), False)
sketch7.addGeometry(Part.LineSegment(App.Vector(165.5, 23, 0), App.Vector(165.5, 16, 0)), False)
sketch7.addGeometry(Part.LineSegment(App.Vector(165.5, 16, 0), App.Vector(181.5, 16, 0)), False)
sketch7.addGeometry(Part.Circle(App.Vector(173.5, 23, 0), App.Vector(0, 0, 1), 4), False)
sketch7.addConstraint(Sketcher.Constraint("Tangent", 0, 2, 1, 1))
sketch7.addConstraint(Sketcher.Constraint("Tangent", 1, 2, 2, 1))
sketch7.addConstraint(Sketcher.Constraint("Coincident", 2, 2, 3, 1))
sketch7.addConstraint(Sketcher.Constraint("Coincident", 3, 2, 0, 1))
sketch7.addConstraint(Sketcher.Constraint("Vertical", 0))
sketch7.addConstraint(Sketcher.Constraint("Vertical", 2))
sketch7.addConstraint(Sketcher.Constraint("Horizontal", 3))
sketch7.addConstraint(Sketcher.Constraint("Coincident", 4, 3, 1, 3))
sketch7.addConstraint(Sketcher.Constraint("Diameter", 4, Q("8 mm")))
sketch7.addConstraint(Sketcher.Constraint("Radius", 1, Q("8 mm")))
sketch7.addConstraint(Sketcher.Constraint("DistanceY", 0, 1, 0, 2, Q("7 mm")))
sketch7.addConstraint(Sketcher.Constraint("DistanceY", -1, 1, 1, 3, Q("23 mm")))
sketch7.addConstraint(Sketcher.Constraint("DistanceX", -1, 1, 1, 3, Q("173.548132 mm")))
pad4 = doc.addObject("PartDesign::Pad", "Pad003")
body.addObject(pad4)
pad4.Profile = sketch7
pad4.Length = 40
pad4.Reversed = True

# Sketch on an angled plane
sketch8 = doc.addObject("Sketcher::SketchObject", "Sketch007")
body.addObject(sketch8)
sketch8.Placement = App.Placement(App.Vector(80.997761, 0, 80.997761), App.Rotation(App.Vector(-0.707106781, 0, 0.707106781), App.Vector(0, 0.999999999, 0), App.Vector(-0.707106781, 0, -0.707106781), "ZXY"))
sketch8.addGeometry(Part.LineSegment(App.Vector(-165.5, 16, 0), App.Vector(-165.5, 23, 0)), False)
sketch8.addGeometry(Part.ArcOfCircle(Part.Circle(App.Vector(-173.5, 23, 0), App.Vector(0, 0, 1), 8), math.radians(0), math.radians(180)), False)
sketch8.addGeometry(Part.LineSegment(App.Vector(-181.5, 23, 0), App.Vector(-181.5, 16, 0)), False)
sketch8.addGeometry(Part.LineSegment(App.Vector(-181.5, 16, 0), App.Vector(-165.5, 16, 0)), False)
sketch8.addGeometry(Part.Circle(App.Vector(-173.5, 23, 0), App.Vector(0, 0, 1), 4), False)
sketch8.addConstraint(Sketcher.Constraint("Tangent", 0, 2, 1, 1))
sketch8.addConstraint(Sketcher.Constraint("Tangent", 1, 2, 2, 1))
sketch8.addConstraint(Sketcher.Constraint("Coincident", 2, 2, 3, 1))
sketch8.addConstraint(Sketcher.Constraint("Coincident", 3, 2, 0, 1))
sketch8.addConstraint(Sketcher.Constraint("Vertical", 0))
sketch8.addConstraint(Sketcher.Constraint("Vertical", 2))
sketch8.addConstraint(Sketcher.Constraint("Horizontal", 3))
sketch8.addConstraint(Sketcher.Constraint("Coincident", 4, 3, 1, 3))
sketch8.addConstraint(Sketcher.Constraint("Diameter", 4, Q("8 mm")))
sketch8.addConstraint(Sketcher.Constraint("Radius", 1, Q("8 mm")))
sketch8.addConstraint(Sketcher.Constraint("DistanceY", 0, 1, 0, 2, Q("7 mm")))
sketch8.addConstraint(Sketcher.Constraint("DistanceY", -1, 1, 1, 3, Q("23 mm")))
sketch8.addConstraint(Sketcher.Constraint("DistanceX", 1, 3, -1, 1, Q("173.548132 mm")))
pad5 = doc.addObject("PartDesign::Pad", "Pad004")
body.addObject(pad5)
pad5.Profile = sketch8
pad5.Length = 40
pad5.Reversed = True

doc.recompute()
